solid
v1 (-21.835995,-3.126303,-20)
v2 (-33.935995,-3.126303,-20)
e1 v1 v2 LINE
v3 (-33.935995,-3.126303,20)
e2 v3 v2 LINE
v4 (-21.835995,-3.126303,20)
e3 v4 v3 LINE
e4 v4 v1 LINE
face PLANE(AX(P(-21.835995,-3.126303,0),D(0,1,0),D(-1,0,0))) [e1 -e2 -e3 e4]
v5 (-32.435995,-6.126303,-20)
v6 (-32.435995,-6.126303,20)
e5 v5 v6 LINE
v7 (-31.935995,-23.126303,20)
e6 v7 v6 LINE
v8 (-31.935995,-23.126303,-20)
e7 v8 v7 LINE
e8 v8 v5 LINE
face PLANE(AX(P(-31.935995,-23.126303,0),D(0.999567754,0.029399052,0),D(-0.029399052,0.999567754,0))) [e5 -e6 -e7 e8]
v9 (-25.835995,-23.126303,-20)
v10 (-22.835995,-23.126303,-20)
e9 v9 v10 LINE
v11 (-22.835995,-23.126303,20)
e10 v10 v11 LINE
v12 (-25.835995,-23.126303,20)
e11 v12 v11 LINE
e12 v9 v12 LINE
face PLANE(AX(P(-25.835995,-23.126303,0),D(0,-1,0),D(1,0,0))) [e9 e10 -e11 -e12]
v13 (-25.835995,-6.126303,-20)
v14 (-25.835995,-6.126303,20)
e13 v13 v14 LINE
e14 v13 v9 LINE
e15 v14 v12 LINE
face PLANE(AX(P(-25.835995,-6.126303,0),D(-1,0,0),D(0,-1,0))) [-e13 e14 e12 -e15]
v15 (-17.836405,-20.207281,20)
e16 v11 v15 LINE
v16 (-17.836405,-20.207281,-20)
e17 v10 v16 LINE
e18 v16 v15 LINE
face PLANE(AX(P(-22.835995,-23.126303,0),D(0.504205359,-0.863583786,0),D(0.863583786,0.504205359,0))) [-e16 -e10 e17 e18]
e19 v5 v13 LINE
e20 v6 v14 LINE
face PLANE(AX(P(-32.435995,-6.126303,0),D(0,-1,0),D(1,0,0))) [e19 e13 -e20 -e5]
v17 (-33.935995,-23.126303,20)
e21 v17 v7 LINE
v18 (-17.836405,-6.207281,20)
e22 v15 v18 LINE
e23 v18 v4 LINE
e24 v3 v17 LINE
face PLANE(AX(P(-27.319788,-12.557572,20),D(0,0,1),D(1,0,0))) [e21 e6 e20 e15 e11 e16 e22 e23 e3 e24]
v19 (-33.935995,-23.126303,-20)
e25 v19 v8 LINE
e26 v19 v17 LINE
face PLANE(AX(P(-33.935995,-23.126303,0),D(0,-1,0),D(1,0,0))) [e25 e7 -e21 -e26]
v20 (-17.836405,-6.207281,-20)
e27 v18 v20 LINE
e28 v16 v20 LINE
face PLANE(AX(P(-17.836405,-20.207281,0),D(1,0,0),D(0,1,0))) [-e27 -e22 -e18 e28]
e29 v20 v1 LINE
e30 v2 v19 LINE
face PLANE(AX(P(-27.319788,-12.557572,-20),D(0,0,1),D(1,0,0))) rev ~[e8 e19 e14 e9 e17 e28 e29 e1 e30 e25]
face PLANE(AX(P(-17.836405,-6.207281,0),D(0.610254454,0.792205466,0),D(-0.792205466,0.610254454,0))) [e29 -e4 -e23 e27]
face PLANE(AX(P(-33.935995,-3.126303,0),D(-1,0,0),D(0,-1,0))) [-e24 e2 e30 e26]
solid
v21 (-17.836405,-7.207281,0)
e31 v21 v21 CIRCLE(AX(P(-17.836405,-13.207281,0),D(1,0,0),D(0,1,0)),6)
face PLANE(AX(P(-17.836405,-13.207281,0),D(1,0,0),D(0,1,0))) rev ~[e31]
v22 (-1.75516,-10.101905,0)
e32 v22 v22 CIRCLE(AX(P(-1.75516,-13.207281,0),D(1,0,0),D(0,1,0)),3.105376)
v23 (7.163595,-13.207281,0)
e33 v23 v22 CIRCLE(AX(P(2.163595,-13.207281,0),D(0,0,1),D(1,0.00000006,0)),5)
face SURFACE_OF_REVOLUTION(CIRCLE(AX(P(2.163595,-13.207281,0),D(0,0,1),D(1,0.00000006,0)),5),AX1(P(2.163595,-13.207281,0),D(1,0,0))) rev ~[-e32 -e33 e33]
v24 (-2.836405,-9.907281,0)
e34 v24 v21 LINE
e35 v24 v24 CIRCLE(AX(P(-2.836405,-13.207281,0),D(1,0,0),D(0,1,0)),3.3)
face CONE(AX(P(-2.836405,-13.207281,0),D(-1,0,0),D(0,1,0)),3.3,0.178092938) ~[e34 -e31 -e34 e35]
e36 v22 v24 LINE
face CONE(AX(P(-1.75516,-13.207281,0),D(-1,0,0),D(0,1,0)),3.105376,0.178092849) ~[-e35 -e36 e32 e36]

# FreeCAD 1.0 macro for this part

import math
import FreeCAD as App
import Part
import Sketcher

doc = App.newDocument("Part")
body = doc.addObject("PartDesign::Body", "Body")

# Sketch on XY plane
sketch1 = doc.addObject("Sketcher::SketchObject", "Sketch")
body.addObject(sketch1)
sketch1.AttachmentSupport = (doc.XY_Plane, [""])
sketch1.MapMode = "FlatFace"
sketch1.addGeometry(Part.LineSegment(App.Vector(-33.9, -3.1, 0), App.Vector(-33.9, -23.1, 0)), False)
sketch1.addGeometry(Part.LineSegment(App.Vector(-33.9, -23.1, 0), App.Vector(-31.9, -23.1, 0)), False)
sketch1.addGeometry(Part.LineSegment(App.Vector(-31.9, -23.1, 0), App.Vector(-32.4, -6.1, 0)), False)
sketch1.addGeometry(Part.LineSegment(App.Vector(-32.4, -6.1, 0), App.Vector(-25.8, -6.1, 0)), False)
sketch1.addGeometry(Part.LineSegment(App.Vector(-25.8, -6.1, 0), App.Vector(-25.8, -23.1, 0)), False)
sketch1.addGeometry(Part.LineSegment(App.Vector(-25.8, -23.1, 0), App.Vector(-22.8, -23.1, 0)), False)
sketch1.addGeometry(Part.LineSegment(App.Vector(-22.8, -23.1, 0), App.Vector(-17.8, -20.2, 0)), False)
sketch1.addGeometry(Part.LineSegment(App.Vector(-17.8, -20.2, 0), App.Vector(-17.8, -6.2, 0)), False)
sketch1.addGeometry(Part.LineSegment(App.Vector(-17.8, -6.2, 0), App.Vector(-21.8, -3.1, 0)), False)
sketch1.addGeometry(Part.LineSegment(App.Vector(-21.8, -3.1, 0), App.Vector(-33.9, -3.1, 0)), False)
sketch1.addConstraint(Sketcher.Constraint("Coincident", 0, 2, 1, 1))
sketch1.addConstraint(Sketcher.Constraint("Coincident", 1, 2, 2, 1))
sketch1.addConstraint(Sketcher.Constraint("Coincident", 2, 2, 3, 1))
sketch1.addConstraint(Sketcher.Constraint("Coincident", 3, 2, 4, 1))
sketch1.addConstraint(Sketcher.Constraint("Coincident", 4, 2, 5, 1))
sketch1.addConstraint(Sketcher.Constraint("Coincident", 5, 2, 6, 1))
sketch1.addConstraint(Sketcher.Constraint("Coincident", 6, 2, 7, 1))
sketch1.addConstraint(Sketcher.Constraint("Coincident", 7, 2, 8, 1))
sketch1.addConstraint(Sketcher.Constraint("Coincident", 8, 2, 9, 1))
sketch1.addConstraint(Sketcher.Constraint("Coincident", 9, 2, 0, 1))
sketch1.addConstraint(Sketcher.Constraint("Vertical", 0))
sketch1.addConstraint(Sketcher.Constraint("Horizontal", 1))
sketch1.addConstraint(Sketcher.Constraint("Horizontal", 3))
sketch1.addConstraint(Sketcher.Constraint("Vertical", 4))
sketch1.addConstraint(Sketcher.Constraint("Horizontal", 5))
sketch1.addConstraint(Sketcher.Constraint("Vertical", 7))
sketch1.addConstraint(Sketcher.Constraint("Horizontal", 9))
sketch1.addConstraint(Sketcher.Constraint("Horizontal", 1, 2, 4, 2))
sketch1.addConstraint(Sketcher.Constraint("DistanceX", 1, 1, 1, 2, 2.0))
sketch1.addConstraint(Sketcher.Constraint("DistanceX", 5, 1, 5, 2, 3.0))
sketch1.addConstraint(Sketcher.Constraint("DistanceY", 0, 2, 0, 1, 20.0))
sketch1.addConstraint(Sketcher.Constraint("DistanceY", 4, 2, 4, 1, 17.0))
sketch1.addConstraint(Sketcher.Constraint("DistanceY", 7, 1, 7, 2, 14.0))
sketch1.addConstraint(Sketcher.Constraint("DistanceX", 3, 1, 3, 2, 6.6))
sketch1.addConstraint(Sketcher.Constraint("DistanceX", 9, 2, 9, 1, 12.1))
sketch1.addConstraint(Sketcher.Constraint("DistanceX", 3, 2, 8, 2, 4.0))
sketch1.addConstraint(Sketcher.Constraint("Distance", 6, 5.789351))
sketch1.addConstraint(Sketcher.Constraint("DistanceY", 6, 2, -1, 1, 20.207281))
sketch1.addConstraint(Sketcher.Constraint("DistanceX", 5, 2, 6, 2, 4.99959))
sketch1.addConstraint(Sketcher.Constraint("DistanceX", 0, 2, -1, 1, 33.935995))
pad1 = doc.addObject("PartDesign::Pad", "Pad")
body.addObject(pad1)
pad1.Profile = sketch1
pad1.Length = 40
pad1.Midplane = True
body2 = doc.addObject("PartDesign::Body", "Body001")

# Sketch on XY plane
sketch2 = doc.addObject("Sketcher::SketchObject", "Sketch001")
body2.addObject(sketch2)
sketch2.AttachmentSupport = (doc.getObject("XY_Plane001"), [""])
sketch2.MapMode = "FlatFace"
sketch2.addGeometry(Part.LineSegment(App.Vector(-2.8, -9.9, 0), App.Vector(-17.8, -7.2, 0)), False)
sketch2.addGeometry(Part.LineSegment(App.Vector(-17.8, -7.2, 0), App.Vector(-17.8, -13.2, 0)), False)
sketch2.addGeometry(Part.LineSegment(App.Vector(-17.8, -13.2, 0), App.Vector(-2.8, -13.2, 0)), False)
sketch2.addGeometry(Part.ArcOfCircle(Part.Circle(App.Vector(2.2, -13.2, 0), App.Vector(0, 0, 1), 5), math.radians(142), math.radians(180)), False)
sketch2.addGeometry(Part.LineSegment(App.Vector(-1.8, -10.1, 0), App.Vector(-2.8, -9.9, 0)), False)
sketch2.addGeometry(Part.LineSegment(App.Vector(-17.8, -13.2, 0), App.Vector(2.2, -13.2, 0)), True)  # axis
sketch2.addConstraint(Sketcher.Constraint("Coincident", 0, 2, 1, 1))
sketch2.addConstraint(Sketcher.Constraint("Coincident", 1, 2, 2, 1))
sketch2.addConstraint(Sketcher.Constraint("Coincident", 2, 2, 3, 2))
sketch2.addConstraint(Sketcher.Constraint("Coincident", 3, 1, 4, 1))
sketch2.addConstraint(Sketcher.Constraint("Coincident", 4, 2, 0, 1))
sketch2.addConstraint(Sketcher.Constraint("Vertical", 1))
sketch2.addConstraint(Sketcher.Constraint("Horizontal", 2))
sketch2.addConstraint(Sketcher.Constraint("Horizontal", 5))
sketch2.addConstraint(Sketcher.Constraint("Coincident", 5, 1, 1, 2))
sketch2.addConstraint(Sketcher.Constraint("Coincident", 5, 2, 3, 3))
sketch2.addConstraint(Sketcher.Constraint("Parallel", 0, 4))
sketch2.addConstraint(Sketcher.Constraint("Vertical", 2, 2, 4, 2))
sketch2.addConstraint(Sketcher.Constraint("Radius", 3, 4.999998))
sketch2.addConstraint(Sketcher.Constraint("DistanceX", 2, 1, 2, 2, 15.0))
sketch2.addConstraint(Sketcher.Constraint("DistanceY", 1, 2, 1, 1, 6.0))
sketch2.addConstraint(Sketcher.Constraint("DistanceY", 2, 2, 4, 2, 3.3))
sketch2.addConstraint(Sketcher.Constraint("DistanceY", 3, 3, -1, 1, 13.20728))
sketch2.addConstraint(Sketcher.Constraint("DistanceX", 3, 1, -1, 1, 1.75516))
revolution = doc.addObject("PartDesign::Revolution", "Revolution")
body2.addObject(revolution)
revolution.Profile = sketch2
revolution.ReferenceAxis = (sketch2, ["Axis0"])
revolution.Angle = 360

# Sketch on XY plane
sketch3 = doc.addObject("Sketcher::SketchObject", "Sketch002")
body2.addObject(sketch3)
sketch3.AttachmentSupport = (doc.getObject("XY_Plane001"), [""])
sketch3.MapMode = "FlatFace"
sketch3.addGeometry(Part.ArcOfCircle(Part.Circle(App.Vector(2.2, -13.2, 0), App.Vector(0, 0, 1), 5), math.radians(142), math.radians(180)), False)
sketch3.addGeometry(Part.LineSegment(App.Vector(-2.8, -13.2, 0), App.Vector(7.2, -13.2, 0)), False)
sketch3.addGeometry(Part.ArcOfCircle(Part.Circle(App.Vector(2.2, -13.2, 0), App.Vector(0, 0, 1), 5), math.radians(0), math.radians(142)), False)
sketch3.addGeometry(Part.LineSegment(App.Vector(-2.8, -13.2, 0), App.Vector(7.2, -13.2, 0)), True)  # axis
sketch3.addConstraint(Sketcher.Constraint("Coincident", 0, 2, 1, 1))
sketch3.addConstraint(Sketcher.Constraint("Coincident", 1, 2, 2, 1))
sketch3.addConstraint(Sketcher.Constraint("Tangent", 2, 2, 0, 1))
sketch3.addConstraint(Sketcher.Constraint("Horizontal", 1))
sketch3.addConstraint(Sketcher.Constraint("Horizontal", 3))
sketch3.addConstraint(Sketcher.Constraint("Coincident", 3, 1, 0, 2))
sketch3.addConstraint(Sketcher.Constraint("Equal", 0, 2))
sketch3.addConstraint(Sketcher.Constraint("Horizontal", 2, 3, 0, 2))
sketch3.addConstraint(Sketcher.Constraint("Equal", 1, 3))
sketch3.addConstraint(Sketcher.Constraint("Radius", 0, 4.999998))
sketch3.addConstraint(Sketcher.Constraint("DistanceY", 0, 3, -1, 1, 13.20728))
sketch3.addConstraint(Sketcher.Constraint("DistanceX", 2, 2, -1, 1, 1.75516))
sketch3.addConstraint(Sketcher.Constraint("DistanceX", -1, 1, 0, 3, 2.163593))
revolution2 = doc.addObject("PartDesign::Revolution", "Revolution001")
body2.addObject(revolution2)
revolution2.Profile = sketch3
revolution2.ReferenceAxis = (sketch3, ["Axis0"])
revolution2.Angle = 360

doc.recompute()
